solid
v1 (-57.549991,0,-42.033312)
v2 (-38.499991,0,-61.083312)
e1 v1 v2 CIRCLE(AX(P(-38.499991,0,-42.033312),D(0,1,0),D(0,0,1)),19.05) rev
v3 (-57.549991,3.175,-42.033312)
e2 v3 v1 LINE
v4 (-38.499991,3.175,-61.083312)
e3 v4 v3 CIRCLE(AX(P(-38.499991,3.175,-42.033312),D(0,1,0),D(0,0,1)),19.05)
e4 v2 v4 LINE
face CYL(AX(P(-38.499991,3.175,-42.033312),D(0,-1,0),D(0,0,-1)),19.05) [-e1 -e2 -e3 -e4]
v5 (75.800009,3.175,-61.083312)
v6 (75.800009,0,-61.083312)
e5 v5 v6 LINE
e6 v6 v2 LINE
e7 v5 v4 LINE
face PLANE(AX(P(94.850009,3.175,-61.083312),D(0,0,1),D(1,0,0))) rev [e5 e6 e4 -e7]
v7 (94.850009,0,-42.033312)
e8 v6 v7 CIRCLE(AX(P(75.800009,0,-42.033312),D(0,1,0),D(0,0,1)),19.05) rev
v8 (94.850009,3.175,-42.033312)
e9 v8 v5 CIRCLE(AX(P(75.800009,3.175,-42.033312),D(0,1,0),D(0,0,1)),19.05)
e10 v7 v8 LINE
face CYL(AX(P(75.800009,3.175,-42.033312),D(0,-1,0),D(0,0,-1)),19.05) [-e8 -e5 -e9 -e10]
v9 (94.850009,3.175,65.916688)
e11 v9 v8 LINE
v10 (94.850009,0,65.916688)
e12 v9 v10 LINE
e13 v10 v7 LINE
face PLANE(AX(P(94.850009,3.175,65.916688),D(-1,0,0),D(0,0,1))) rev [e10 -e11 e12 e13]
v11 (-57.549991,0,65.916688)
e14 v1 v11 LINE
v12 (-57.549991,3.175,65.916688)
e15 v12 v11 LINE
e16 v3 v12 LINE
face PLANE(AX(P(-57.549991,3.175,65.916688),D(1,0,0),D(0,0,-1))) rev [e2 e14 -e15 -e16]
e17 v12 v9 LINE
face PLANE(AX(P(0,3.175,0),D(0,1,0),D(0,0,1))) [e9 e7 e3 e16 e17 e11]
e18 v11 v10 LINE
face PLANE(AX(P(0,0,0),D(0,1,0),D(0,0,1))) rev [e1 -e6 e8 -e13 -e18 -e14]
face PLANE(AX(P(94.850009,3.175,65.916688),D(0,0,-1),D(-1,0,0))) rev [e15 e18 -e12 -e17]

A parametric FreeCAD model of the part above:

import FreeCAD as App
import Part
import Sketcher
from FreeCAD import Vector
Q = App.Units.Quantity


def edges_at(feature, points):
    """Names of the edges that pass closest to the given points."""
    edges = feature.Shape.Edges
    near = lambda p: min(range(len(edges)), key=lambda i: edges[i].distToShape(Part.Vertex(*p))[0])
    return sorted({f"Edge{near(p) + 1}" for p in points})

doc = App.newDocument("Part")
body = doc.addObject("PartDesign::Body", "Body")

# Sketch on XZ plane
sketch1 = body.newObject("Sketcher::SketchObject", "Sketch")
sketch1.AttachmentSupport = (doc.getObject("XZ_Plane"), [""])
sketch1.MapMode = "FlatFace"
sketch1.addGeometry(Part.LineSegment(Vector(-58, -61, 0), Vector(-58, 66, 0)), False)
sketch1.addGeometry(Part.LineSegment(Vector(-58, 66, 0), Vector(95, 66, 0)), False)
sketch1.addGeometry(Part.LineSegment(Vector(95, 66, 0), Vector(95, -61, 0)), False)
sketch1.addGeometry(Part.LineSegment(Vector(95, -61, 0), Vector(-58, -61, 0)), False)
sketch1.addConstraint(Sketcher.Constraint("Coincident", 0, 2, 1, 1))
sketch1.addConstraint(Sketcher.Constraint("Coincident", 1, 2, 2, 1))
sketch1.addConstraint(Sketcher.Constraint("Coincident", 2, 2, 3, 1))
sketch1.addConstraint(Sketcher.Constraint("Coincident", 3, 2, 0, 1))
sketch1.addConstraint(Sketcher.Constraint("Vertical", 0))
sketch1.addConstraint(Sketcher.Constraint("Horizontal", 1))
sketch1.addConstraint(Sketcher.Constraint("Vertical", 2))
sketch1.addConstraint(Sketcher.Constraint("Horizontal", 3))
sketch1.addConstraint(Sketcher.Constraint("DistanceX", 1, 1, 1, 2, Q("6 in")))
sketch1.addConstraint(Sketcher.Constraint("DistanceY", 0, 1, 0, 2, Q("5 in")))
sketch1.addConstraint(Sketcher.Constraint("DistanceX", 0, 2, -1, 1, Q("57.549991 mm")))
sketch1.addConstraint(Sketcher.Constraint("DistanceY", -1, 1, 0, 2, Q("65.916688 mm")))
pad1 = body.newObject("PartDesign::Pad", "Pad")
pad1.Profile = sketch1
pad1.Length = Q("0.125 in")
pad1.Reversed = True
doc.recompute()

fillet = body.newObject("PartDesign::Fillet", "Fillet")
fillet.Base = (pad1, edges_at(pad1, [(-57.55, 1.587, -61.083)]))
fillet.Radius = Q("0.75 in")
doc.recompute()

fillet2 = body.newObject("PartDesign::Fillet", "Fillet001")
fillet2.Base = (fillet, edges_at(fillet, [(94.85, 1.587, -61.083)]))
fillet2.Radius = Q("0.75 in")

doc.recompute()
